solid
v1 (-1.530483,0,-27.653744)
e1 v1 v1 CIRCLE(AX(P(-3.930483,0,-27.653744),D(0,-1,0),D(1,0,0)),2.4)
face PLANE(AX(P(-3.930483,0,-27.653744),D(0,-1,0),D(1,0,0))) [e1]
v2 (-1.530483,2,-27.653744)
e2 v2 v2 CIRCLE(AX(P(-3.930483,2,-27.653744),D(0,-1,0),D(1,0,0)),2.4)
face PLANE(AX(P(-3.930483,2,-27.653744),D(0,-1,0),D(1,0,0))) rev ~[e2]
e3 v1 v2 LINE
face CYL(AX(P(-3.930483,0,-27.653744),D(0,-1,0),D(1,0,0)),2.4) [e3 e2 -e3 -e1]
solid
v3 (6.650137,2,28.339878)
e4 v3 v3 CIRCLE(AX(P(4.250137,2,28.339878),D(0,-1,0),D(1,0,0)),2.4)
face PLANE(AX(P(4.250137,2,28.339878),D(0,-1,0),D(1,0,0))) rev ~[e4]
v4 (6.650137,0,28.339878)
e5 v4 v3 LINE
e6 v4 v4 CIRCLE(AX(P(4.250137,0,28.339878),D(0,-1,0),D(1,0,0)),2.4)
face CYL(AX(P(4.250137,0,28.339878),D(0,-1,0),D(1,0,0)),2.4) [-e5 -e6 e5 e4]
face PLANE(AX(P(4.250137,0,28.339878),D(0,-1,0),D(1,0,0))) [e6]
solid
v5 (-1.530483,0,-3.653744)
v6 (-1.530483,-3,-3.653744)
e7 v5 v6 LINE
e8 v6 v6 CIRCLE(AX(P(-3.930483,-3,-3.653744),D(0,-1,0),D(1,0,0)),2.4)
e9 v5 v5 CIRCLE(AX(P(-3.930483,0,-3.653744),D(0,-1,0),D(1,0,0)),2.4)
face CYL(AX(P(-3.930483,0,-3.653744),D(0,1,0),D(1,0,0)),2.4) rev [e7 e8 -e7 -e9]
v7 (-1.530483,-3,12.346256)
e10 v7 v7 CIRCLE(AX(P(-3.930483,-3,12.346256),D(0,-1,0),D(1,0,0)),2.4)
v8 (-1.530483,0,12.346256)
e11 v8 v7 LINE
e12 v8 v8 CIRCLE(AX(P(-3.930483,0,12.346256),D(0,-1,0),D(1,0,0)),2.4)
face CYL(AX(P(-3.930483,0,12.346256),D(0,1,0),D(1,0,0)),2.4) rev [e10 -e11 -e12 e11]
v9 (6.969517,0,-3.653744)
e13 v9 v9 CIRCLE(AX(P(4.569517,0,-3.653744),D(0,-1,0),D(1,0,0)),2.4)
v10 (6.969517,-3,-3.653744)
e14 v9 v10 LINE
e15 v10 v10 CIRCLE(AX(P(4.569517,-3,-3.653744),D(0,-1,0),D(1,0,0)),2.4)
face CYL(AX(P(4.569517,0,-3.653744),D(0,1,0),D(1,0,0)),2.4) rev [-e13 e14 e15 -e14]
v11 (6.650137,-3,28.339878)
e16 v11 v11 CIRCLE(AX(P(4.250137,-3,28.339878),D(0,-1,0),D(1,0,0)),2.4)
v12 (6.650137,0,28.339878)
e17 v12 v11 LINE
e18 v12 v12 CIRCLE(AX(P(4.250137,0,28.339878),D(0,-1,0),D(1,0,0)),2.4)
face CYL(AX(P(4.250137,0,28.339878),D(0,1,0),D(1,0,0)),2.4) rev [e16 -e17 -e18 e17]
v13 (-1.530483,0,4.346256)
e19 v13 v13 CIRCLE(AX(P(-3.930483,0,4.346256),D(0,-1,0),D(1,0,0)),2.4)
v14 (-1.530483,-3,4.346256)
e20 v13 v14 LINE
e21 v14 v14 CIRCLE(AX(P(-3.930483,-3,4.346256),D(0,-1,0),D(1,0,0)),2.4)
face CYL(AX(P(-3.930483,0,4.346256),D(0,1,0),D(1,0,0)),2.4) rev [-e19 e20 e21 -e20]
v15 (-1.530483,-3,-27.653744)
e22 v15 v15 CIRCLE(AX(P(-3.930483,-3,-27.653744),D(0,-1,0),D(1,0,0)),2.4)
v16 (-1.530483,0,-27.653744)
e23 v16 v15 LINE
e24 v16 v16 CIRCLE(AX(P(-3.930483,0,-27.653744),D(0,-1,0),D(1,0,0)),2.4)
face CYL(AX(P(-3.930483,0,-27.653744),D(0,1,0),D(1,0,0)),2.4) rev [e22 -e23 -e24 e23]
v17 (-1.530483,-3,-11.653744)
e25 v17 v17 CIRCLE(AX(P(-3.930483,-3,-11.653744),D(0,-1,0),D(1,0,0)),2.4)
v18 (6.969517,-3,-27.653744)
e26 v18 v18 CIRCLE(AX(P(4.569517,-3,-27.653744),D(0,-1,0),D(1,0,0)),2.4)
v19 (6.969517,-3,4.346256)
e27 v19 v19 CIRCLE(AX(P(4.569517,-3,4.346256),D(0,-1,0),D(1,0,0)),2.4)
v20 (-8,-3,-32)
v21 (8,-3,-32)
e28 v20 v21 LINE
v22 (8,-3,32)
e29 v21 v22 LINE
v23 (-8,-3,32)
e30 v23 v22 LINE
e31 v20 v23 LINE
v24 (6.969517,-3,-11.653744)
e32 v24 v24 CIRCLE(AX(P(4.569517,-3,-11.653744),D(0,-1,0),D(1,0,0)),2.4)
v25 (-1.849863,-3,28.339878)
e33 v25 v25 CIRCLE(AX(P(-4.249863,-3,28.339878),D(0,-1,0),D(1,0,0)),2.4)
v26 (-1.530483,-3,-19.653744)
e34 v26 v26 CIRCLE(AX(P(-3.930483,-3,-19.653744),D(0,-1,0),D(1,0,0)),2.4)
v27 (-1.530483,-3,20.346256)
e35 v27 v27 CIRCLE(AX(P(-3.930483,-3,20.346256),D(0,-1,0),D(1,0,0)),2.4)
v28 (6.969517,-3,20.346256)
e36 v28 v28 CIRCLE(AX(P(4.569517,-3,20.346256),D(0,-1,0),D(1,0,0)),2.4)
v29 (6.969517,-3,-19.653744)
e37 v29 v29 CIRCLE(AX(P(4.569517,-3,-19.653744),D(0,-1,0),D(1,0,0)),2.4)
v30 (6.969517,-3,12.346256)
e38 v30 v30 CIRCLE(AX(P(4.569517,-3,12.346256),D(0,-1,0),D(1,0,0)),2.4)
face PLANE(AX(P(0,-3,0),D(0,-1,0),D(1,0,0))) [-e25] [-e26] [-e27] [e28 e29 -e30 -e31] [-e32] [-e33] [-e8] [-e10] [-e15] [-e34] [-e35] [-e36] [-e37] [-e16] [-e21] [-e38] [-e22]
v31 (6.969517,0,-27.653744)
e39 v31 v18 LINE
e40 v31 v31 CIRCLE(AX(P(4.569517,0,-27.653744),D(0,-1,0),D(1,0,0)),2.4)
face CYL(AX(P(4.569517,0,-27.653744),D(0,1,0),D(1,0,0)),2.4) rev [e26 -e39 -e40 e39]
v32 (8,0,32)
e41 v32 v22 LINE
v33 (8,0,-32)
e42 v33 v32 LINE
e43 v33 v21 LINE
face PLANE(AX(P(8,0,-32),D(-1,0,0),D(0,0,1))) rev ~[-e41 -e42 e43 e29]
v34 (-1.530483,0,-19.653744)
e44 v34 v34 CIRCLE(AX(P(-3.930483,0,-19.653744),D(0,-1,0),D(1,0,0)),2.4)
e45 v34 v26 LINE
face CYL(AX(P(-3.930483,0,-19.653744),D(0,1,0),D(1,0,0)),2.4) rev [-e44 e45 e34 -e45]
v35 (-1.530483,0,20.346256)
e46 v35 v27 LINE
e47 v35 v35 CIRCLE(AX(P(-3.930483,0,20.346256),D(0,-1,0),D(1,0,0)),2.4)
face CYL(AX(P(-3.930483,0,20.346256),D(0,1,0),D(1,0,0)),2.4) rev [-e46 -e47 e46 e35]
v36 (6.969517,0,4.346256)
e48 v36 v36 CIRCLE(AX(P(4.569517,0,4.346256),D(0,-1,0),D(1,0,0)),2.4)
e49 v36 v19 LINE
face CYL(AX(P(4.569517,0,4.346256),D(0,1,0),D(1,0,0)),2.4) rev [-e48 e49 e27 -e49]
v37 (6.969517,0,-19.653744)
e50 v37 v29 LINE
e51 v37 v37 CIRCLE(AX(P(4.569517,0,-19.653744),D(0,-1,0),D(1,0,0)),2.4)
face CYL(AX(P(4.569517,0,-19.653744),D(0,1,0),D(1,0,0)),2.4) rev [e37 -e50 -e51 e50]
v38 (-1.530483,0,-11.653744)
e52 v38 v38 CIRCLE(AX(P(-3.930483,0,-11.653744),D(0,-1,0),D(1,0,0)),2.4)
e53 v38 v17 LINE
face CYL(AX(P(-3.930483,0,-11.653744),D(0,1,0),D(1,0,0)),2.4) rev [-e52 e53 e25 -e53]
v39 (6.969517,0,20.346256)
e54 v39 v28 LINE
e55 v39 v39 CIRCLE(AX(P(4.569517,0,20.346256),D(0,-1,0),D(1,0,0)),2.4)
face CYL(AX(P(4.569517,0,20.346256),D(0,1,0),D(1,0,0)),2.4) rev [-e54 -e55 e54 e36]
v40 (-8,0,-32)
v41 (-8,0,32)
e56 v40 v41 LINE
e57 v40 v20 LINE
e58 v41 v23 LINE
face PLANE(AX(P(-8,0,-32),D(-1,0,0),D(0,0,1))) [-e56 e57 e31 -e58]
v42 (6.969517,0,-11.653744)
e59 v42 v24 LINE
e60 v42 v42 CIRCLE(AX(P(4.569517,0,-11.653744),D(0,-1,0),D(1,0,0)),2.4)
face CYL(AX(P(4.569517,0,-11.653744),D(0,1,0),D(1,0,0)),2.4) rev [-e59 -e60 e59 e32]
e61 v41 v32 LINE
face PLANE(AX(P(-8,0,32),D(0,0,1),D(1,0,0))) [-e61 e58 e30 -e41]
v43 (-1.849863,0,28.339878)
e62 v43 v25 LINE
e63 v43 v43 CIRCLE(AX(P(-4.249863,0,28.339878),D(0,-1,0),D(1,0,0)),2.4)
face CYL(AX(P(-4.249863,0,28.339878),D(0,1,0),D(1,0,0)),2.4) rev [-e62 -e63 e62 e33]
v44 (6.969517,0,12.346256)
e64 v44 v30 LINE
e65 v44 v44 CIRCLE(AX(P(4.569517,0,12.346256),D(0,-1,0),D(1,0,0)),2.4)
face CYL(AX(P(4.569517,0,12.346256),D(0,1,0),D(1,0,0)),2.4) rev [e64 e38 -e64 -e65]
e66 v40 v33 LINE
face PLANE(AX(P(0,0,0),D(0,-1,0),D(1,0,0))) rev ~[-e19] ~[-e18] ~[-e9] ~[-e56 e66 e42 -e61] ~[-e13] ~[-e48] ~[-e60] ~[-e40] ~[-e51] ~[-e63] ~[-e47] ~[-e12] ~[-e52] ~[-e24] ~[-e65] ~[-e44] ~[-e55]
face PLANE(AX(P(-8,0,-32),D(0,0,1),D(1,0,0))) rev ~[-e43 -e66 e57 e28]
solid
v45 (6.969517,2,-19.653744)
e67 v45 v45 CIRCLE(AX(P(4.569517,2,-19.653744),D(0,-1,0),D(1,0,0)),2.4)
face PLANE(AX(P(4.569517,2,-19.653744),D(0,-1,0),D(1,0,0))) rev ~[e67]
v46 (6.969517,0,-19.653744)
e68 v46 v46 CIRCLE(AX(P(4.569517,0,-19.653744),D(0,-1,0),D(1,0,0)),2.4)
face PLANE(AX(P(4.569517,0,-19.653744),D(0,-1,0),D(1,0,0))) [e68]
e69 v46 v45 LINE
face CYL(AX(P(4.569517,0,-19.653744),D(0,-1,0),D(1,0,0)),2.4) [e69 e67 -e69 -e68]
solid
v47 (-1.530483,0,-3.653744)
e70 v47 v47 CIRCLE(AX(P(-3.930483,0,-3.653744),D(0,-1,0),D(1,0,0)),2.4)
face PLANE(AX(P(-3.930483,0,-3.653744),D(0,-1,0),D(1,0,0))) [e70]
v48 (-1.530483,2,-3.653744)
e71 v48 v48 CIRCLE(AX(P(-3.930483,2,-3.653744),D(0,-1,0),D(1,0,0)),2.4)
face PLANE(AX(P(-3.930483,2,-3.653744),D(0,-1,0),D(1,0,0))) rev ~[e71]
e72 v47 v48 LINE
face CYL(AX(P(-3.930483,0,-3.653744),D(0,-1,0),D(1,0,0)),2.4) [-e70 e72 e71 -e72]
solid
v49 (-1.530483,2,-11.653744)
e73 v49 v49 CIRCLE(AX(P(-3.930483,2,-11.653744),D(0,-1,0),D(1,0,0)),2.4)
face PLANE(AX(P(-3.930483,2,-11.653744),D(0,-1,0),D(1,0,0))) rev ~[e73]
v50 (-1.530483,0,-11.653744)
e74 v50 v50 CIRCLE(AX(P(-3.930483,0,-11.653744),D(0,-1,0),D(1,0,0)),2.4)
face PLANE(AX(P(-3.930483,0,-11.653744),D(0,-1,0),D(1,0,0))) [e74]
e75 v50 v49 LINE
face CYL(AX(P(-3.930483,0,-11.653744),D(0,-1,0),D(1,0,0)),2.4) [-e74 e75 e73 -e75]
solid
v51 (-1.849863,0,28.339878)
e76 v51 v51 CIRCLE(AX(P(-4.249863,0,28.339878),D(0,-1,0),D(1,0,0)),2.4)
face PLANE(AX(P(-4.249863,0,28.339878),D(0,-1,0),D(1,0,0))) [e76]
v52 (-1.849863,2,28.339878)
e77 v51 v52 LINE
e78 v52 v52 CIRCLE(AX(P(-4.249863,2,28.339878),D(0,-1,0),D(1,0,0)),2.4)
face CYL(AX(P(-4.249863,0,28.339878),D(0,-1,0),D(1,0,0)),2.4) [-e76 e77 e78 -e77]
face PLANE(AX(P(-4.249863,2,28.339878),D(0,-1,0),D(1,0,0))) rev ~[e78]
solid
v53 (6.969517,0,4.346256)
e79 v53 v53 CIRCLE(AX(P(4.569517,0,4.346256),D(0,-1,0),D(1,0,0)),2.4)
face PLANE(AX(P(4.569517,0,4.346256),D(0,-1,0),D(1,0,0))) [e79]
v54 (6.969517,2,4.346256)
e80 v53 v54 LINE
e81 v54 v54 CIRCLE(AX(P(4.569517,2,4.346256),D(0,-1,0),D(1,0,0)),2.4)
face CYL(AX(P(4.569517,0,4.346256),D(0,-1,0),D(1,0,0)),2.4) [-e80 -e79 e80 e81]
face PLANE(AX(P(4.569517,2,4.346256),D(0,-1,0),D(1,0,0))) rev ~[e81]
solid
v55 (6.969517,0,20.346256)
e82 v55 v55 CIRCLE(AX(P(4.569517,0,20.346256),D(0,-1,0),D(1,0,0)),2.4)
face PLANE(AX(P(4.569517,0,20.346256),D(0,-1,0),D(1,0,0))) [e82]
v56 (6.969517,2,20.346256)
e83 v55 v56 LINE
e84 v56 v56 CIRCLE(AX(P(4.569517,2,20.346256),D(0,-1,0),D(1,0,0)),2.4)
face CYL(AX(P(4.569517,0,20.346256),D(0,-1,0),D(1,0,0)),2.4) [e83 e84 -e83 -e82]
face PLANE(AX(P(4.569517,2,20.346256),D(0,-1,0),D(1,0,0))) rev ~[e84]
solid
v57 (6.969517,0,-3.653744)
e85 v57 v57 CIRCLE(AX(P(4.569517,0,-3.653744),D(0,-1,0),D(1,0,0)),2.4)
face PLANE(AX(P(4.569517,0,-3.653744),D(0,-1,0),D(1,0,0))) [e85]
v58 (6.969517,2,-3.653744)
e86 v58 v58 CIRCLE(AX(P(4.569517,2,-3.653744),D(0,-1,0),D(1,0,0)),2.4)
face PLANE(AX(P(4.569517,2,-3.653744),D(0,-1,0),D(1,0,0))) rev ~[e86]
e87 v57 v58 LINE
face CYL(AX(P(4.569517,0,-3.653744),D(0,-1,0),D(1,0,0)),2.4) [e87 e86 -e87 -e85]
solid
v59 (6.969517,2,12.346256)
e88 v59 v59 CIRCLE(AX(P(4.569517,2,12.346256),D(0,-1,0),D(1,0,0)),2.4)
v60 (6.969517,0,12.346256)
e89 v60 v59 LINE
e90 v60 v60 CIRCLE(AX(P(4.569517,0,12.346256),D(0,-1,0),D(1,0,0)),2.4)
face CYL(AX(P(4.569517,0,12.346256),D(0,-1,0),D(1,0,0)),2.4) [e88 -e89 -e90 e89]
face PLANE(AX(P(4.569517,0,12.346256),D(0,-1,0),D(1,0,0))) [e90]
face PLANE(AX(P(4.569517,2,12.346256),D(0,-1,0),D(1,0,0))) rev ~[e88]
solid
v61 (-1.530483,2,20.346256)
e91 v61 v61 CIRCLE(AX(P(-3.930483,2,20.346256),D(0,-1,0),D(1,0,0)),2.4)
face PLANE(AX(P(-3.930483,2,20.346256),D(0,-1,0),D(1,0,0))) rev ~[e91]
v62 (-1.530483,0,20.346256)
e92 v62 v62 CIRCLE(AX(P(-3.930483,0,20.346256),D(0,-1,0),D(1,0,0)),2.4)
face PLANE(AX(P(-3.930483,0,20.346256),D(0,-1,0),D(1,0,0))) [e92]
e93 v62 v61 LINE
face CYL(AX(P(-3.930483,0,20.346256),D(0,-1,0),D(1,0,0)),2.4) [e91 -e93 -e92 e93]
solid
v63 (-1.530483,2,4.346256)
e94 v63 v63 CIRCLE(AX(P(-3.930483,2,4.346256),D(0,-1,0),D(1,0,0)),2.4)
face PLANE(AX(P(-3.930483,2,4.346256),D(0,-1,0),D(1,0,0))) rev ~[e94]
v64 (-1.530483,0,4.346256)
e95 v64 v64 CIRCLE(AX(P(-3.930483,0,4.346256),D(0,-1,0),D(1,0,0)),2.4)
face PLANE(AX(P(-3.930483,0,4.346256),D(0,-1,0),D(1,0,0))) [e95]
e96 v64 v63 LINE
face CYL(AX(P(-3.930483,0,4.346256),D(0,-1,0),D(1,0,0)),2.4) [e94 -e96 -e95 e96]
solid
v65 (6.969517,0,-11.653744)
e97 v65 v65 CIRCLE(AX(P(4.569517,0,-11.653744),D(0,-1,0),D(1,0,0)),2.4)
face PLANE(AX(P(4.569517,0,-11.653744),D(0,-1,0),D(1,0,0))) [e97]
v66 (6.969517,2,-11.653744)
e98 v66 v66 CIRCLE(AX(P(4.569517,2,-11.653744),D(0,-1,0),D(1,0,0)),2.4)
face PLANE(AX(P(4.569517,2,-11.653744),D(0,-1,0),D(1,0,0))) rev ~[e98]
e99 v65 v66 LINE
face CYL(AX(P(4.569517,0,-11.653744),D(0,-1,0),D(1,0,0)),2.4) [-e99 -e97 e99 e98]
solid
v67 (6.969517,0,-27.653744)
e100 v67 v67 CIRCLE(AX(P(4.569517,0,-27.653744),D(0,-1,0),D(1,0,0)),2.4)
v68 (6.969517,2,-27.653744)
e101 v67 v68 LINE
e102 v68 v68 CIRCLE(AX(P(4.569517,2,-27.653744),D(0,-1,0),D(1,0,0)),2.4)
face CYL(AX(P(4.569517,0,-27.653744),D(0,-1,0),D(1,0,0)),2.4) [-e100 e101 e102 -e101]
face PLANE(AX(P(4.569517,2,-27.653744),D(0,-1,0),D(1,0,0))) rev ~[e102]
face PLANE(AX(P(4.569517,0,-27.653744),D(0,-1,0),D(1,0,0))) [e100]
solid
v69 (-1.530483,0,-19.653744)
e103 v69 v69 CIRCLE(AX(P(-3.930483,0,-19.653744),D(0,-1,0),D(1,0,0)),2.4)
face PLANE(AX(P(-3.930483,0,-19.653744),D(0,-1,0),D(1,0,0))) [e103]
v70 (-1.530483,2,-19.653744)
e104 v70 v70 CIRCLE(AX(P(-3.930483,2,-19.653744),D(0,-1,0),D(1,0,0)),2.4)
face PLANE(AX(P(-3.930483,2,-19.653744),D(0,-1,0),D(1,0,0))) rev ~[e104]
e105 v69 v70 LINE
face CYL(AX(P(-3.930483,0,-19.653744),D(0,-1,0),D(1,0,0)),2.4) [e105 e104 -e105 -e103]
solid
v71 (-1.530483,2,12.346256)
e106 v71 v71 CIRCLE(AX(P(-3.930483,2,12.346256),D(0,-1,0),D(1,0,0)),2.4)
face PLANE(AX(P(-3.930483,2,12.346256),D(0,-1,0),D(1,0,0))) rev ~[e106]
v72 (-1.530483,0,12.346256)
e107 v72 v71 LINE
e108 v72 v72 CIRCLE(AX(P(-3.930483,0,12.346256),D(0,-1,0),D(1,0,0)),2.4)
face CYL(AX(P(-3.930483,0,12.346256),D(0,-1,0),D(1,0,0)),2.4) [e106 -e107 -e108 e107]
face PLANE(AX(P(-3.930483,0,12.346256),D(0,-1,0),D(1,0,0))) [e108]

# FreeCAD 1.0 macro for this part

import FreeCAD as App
import Part
import Sketcher
Q = App.Units.Quantity


def add_polygon(sketch, points):
    """Adds a closed chain of lines whose ends are joined by coincident constraints."""
    first, n = sketch.GeometryCount, len(points)
    for a, b in zip(points, points[1:] + points[:1]):
        sketch.addGeometry(Part.LineSegment(App.Vector(*a, 0), App.Vector(*b, 0)), False)
    for i in range(n):
        sketch.addConstraint(Sketcher.Constraint("Coincident", first + i, 2, first + (i + 1) % n, 1))

doc = App.newDocument("Part")
body = doc.addObject("PartDesign::Body", "Body")
body.AllowCompound = True

sketch1 = body.newObject("Sketcher::SketchObject", "Sketch")
sketch1.AttachmentSupport = (doc.getObject("XZ_Plane"), [""])
sketch1.MapMode = "FlatFace"
add_polygon(sketch1, [(-8, 32), (-8, -32), (8, -32), (8, 32)])
sketch1.addGeometry(Part.Circle(App.Vector(-3.9, -27.7, 0), App.Vector(0, 0, 1), 2.4), False)
sketch1.addGeometry(Part.Circle(App.Vector(-3.9, -19.7, 0), App.Vector(0, 0, 1), 2.4), False)
sketch1.addGeometry(Part.Circle(App.Vector(-3.9, -11.7, 0), App.Vector(0, 0, 1), 2.4), False)
sketch1.addGeometry(Part.Circle(App.Vector(-3.9, -3.7, 0), App.Vector(0, 0, 1), 2.4), False)
sketch1.addGeometry(Part.Circle(App.Vector(4.6, -27.7, 0), App.Vector(0, 0, 1), 2.4), False)
sketch1.addGeometry(Part.Circle(App.Vector(4.6, -19.7, 0), App.Vector(0, 0, 1), 2.4), False)
sketch1.addGeometry(Part.Circle(App.Vector(4.6, -11.7, 0), App.Vector(0, 0, 1), 2.4), False)
sketch1.addGeometry(Part.Circle(App.Vector(4.6, -3.7, 0), App.Vector(0, 0, 1), 2.4), False)
sketch1.addGeometry(Part.Circle(App.Vector(-3.9, 4.3, 0), App.Vector(0, 0, 1), 2.4), False)
sketch1.addGeometry(Part.Circle(App.Vector(-3.9, 12.3, 0), App.Vector(0, 0, 1), 2.4), False)
sketch1.addGeometry(Part.Circle(App.Vector(-3.9, 20.3, 0), App.Vector(0, 0, 1), 2.4), False)
sketch1.addGeometry(Part.Circle(App.Vector(-4.2, 28.3, 0), App.Vector(0, 0, 1), 2.4), False)
sketch1.addGeometry(Part.Circle(App.Vector(4.6, 4.3, 0), App.Vector(0, 0, 1), 2.4), False)
sketch1.addGeometry(Part.Circle(App.Vector(4.6, 12.3, 0), App.Vector(0, 0, 1), 2.4), False)
sketch1.addGeometry(Part.Circle(App.Vector(4.6, 20.3, 0), App.Vector(0, 0, 1), 2.4), False)
sketch1.addGeometry(Part.Circle(App.Vector(4.3, 28.3, 0), App.Vector(0, 0, 1), 2.4), False)
sketch1.addConstraint([
    Sketcher.Constraint("Vertical", 0),
    Sketcher.Constraint("Horizontal", 1),
    Sketcher.Constraint("Vertical", 2),
    Sketcher.Constraint("Horizontal", 3),
    Sketcher.Constraint("Equal", 4, 5),
    Sketcher.Constraint("Equal", 5, 6),
    Sketcher.Constraint("Equal", 6, 7),
    Sketcher.Constraint("Equal", 7, 8),
    Sketcher.Constraint("Equal", 8, 9),
    Sketcher.Constraint("Equal", 9, 10),
    Sketcher.Constraint("Equal", 10, 11),
    Sketcher.Constraint("Equal", 11, 12),
    Sketcher.Constraint("Equal", 12, 13),
    Sketcher.Constraint("Equal", 13, 14),
    Sketcher.Constraint("Equal", 14, 15),
    Sketcher.Constraint("Equal", 15, 16),
    Sketcher.Constraint("Equal", 16, 17),
    Sketcher.Constraint("Equal", 17, 18),
    Sketcher.Constraint("Equal", 18, 19),
    Sketcher.Constraint("Symmetric", 0, 2, 2, 2, -1, 1),
    Sketcher.Constraint("Horizontal", 4, 3, 8, 3),
    Sketcher.Constraint("Horizontal", 5, 3, 9, 3),
    Sketcher.Constraint("Horizontal", 6, 3, 10, 3),
    Sketcher.Constraint("Horizontal", 7, 3, 11, 3),
    Sketcher.Constraint("Horizontal", 12, 3, 16, 3),
    Sketcher.Constraint("Horizontal", 13, 3, 17, 3),
    Sketcher.Constraint("Horizontal", 14, 3, 18, 3),
    Sketcher.Constraint("Horizontal", 15, 3, 19, 3),
    Sketcher.Constraint("Vertical", 4, 3, 5, 3),
    Sketcher.Constraint("Vertical", 5, 3, 6, 3),
    Sketcher.Constraint("Vertical", 6, 3, 7, 3),
    Sketcher.Constraint("Vertical", 8, 3, 9, 3),
    Sketcher.Constraint("Vertical", 9, 3, 10, 3),
    Sketcher.Constraint("Vertical", 10, 3, 11, 3),
    Sketcher.Constraint("Vertical", 7, 3, 12, 3),
    Sketcher.Constraint("Vertical", 12, 3, 13, 3),
    Sketcher.Constraint("Vertical", 13, 3, 14, 3),
    Sketcher.Constraint("Vertical", 11, 3, 16, 3),
    Sketcher.Constraint("Vertical", 16, 3, 17, 3),
    Sketcher.Constraint("Vertical", 17, 3, 18, 3),
    Sketcher.Constraint("Diameter", 4, Q("4.8 mm")),
    Sketcher.Constraint("DistanceX", 1, 1, 1, 2, Q("16 mm")),
    Sketcher.Constraint("DistanceY", 0, 2, 0, 1, Q("64 mm")),
    Sketcher.Constraint("DistanceY", 4, 3, 5, 3, Q("8 mm")),
    Sketcher.Constraint("DistanceY", 5, 3, 6, 3, Q("8 mm")),
    Sketcher.Constraint("DistanceY", 6, 3, 7, 3, Q("8 mm")),
    Sketcher.Constraint("DistanceY", 7, 3, 12, 3, Q("8 mm")),
    Sketcher.Constraint("DistanceY", 12, 3, 13, 3, Q("8 mm")),
    Sketcher.Constraint("DistanceY", 13, 3, 14, 3, Q("8 mm")),
    Sketcher.Constraint("DistanceX", 4, 3, 8, 3, Q("8.5 mm")),
    Sketcher.Constraint("DistanceX", 15, 3, 19, 3, Q("8.5 mm")),
    Sketcher.Constraint("DistanceX", 15, 3, 14, 3, Q("0.31938 mm")),
    Sketcher.Constraint("DistanceY", 14, 3, 15, 3, Q("7.993622 mm")),
    Sketcher.Constraint("DistanceX", 4, 3, -1, 1, Q("3.930483 mm")),
    Sketcher.Constraint("DistanceY", 4, 3, -1, 1, Q("27.653744 mm")),
])
pad1 = body.newObject("PartDesign::Pad", "Pad")
pad1.Profile = sketch1
pad1.Length = 3

sketch2 = body.newObject("Sketcher::SketchObject", "Sketch001")
sketch2.AttachmentSupport = (doc.getObject("XZ_Plane"), [""])
sketch2.MapMode = "FlatFace"
sketch2.addGeometry([
    Part.Circle(App.Vector(-4.2, 28.3, 0), App.Vector(0, 0, 1), 2.4),
    Part.Circle(App.Vector(-3.9, 20.3, 0), App.Vector(0, 0, 1), 2.4),
    Part.Circle(App.Vector(-3.9, 12.3, 0), App.Vector(0, 0, 1), 2.4),
    Part.Circle(App.Vector(-3.9, 4.3, 0), App.Vector(0, 0, 1), 2.4),
    Part.Circle(App.Vector(-3.9, -3.7, 0), App.Vector(0, 0, 1), 2.4),
    Part.Circle(App.Vector(-3.9, -11.7, 0), App.Vector(0, 0, 1), 2.4),
    Part.Circle(App.Vector(-3.9, -19.7, 0), App.Vector(0, 0, 1), 2.4),
    Part.Circle(App.Vector(-3.9, -27.7, 0), App.Vector(0, 0, 1), 2.4),
    Part.Circle(App.Vector(4.3, 28.3, 0), App.Vector(0, 0, 1), 2.4),
    Part.Circle(App.Vector(4.6, 20.3, 0), App.Vector(0, 0, 1), 2.4),
    Part.Circle(App.Vector(4.6, 4.3, 0), App.Vector(0, 0, 1), 2.4),
    Part.Circle(App.Vector(4.6, 12.3, 0), App.Vector(0, 0, 1), 2.4),
    Part.Circle(App.Vector(4.6, -3.7, 0), App.Vector(0, 0, 1), 2.4),
    Part.Circle(App.Vector(4.6, -11.7, 0), App.Vector(0, 0, 1), 2.4),
    Part.Circle(App.Vector(4.6, -19.7, 0), App.Vector(0, 0, 1), 2.4),
    Part.Circle(App.Vector(4.6, -27.7, 0), App.Vector(0, 0, 1), 2.4),
], False)
sketch2.addConstraint([
    Sketcher.Constraint("Equal", 0, 1),
    Sketcher.Constraint("Equal", 1, 2),
    Sketcher.Constraint("Equal", 2, 3),
    Sketcher.Constraint("Equal", 3, 4),
    Sketcher.Constraint("Equal", 4, 5),
    Sketcher.Constraint("Equal", 5, 6),
    Sketcher.Constraint("Equal", 6, 7),
    Sketcher.Constraint("Equal", 7, 8),
    Sketcher.Constraint("Equal", 8, 9),
    Sketcher.Constraint("Equal", 9, 10),
    Sketcher.Constraint("Equal", 10, 11),
    Sketcher.Constraint("Equal", 11, 12),
    Sketcher.Constraint("Equal", 12, 13),
    Sketcher.Constraint("Equal", 13, 14),
    Sketcher.Constraint("Equal", 14, 15),
    Sketcher.Constraint("Horizontal", 0, 3, 8, 3),
    Sketcher.Constraint("Horizontal", 1, 3, 9, 3),
    Sketcher.Constraint("Horizontal", 3, 3, 10, 3),
    Sketcher.Constraint("Horizontal", 2, 3, 11, 3),
    Sketcher.Constraint("Horizontal", 4, 3, 12, 3),
    Sketcher.Constraint("Horizontal", 5, 3, 13, 3),
    Sketcher.Constraint("Horizontal", 6, 3, 14, 3),
    Sketcher.Constraint("Horizontal", 7, 3, 15, 3),
    Sketcher.Constraint("Vertical", 1, 3, 2, 3),
    Sketcher.Constraint("Vertical", 2, 3, 3, 3),
    Sketcher.Constraint("Vertical", 3, 3, 4, 3),
    Sketcher.Constraint("Vertical", 4, 3, 5, 3),
    Sketcher.Constraint("Vertical", 5, 3, 6, 3),
    Sketcher.Constraint("Vertical", 6, 3, 7, 3),
    Sketcher.Constraint("Vertical", 9, 3, 10, 3),
    Sketcher.Constraint("Vertical", 10, 3, 11, 3),
    Sketcher.Constraint("Vertical", 11, 3, 12, 3),
    Sketcher.Constraint("Vertical", 12, 3, 13, 3),
    Sketcher.Constraint("Vertical", 13, 3, 14, 3),
    Sketcher.Constraint("Vertical", 14, 3, 15, 3),
    Sketcher.Constraint("Diameter", 0, Q("4.8 mm")),
    Sketcher.Constraint("DistanceY", 2, 3, 1, 3, Q("8 mm")),
    Sketcher.Constraint("DistanceY", 3, 3, 2, 3, Q("8 mm")),
    Sketcher.Constraint("DistanceY", 4, 3, 3, 3, Q("8 mm")),
    Sketcher.Constraint("DistanceY", 5, 3, 4, 3, Q("8 mm")),
    Sketcher.Constraint("DistanceY", 6, 3, 5, 3, Q("8 mm")),
    Sketcher.Constraint("DistanceY", 7, 3, 6, 3, Q("8 mm")),
    Sketcher.Constraint("DistanceX", 0, 3, 8, 3, Q("8.5 mm")),
    Sketcher.Constraint("DistanceX", 1, 3, 9, 3, Q("8.5 mm")),
    Sketcher.Constraint("DistanceX", 0, 3, 1, 3, Q("0.31938 mm")),
    Sketcher.Constraint("DistanceY", 1, 3, 0, 3, Q("7.993622 mm")),
    Sketcher.Constraint("DistanceX", 0, 3, -1, 1, Q("4.249863 mm")),
    Sketcher.Constraint("DistanceY", -1, 1, 0, 3, Q("28.339878 mm")),
])
pad2 = body.newObject("PartDesign::Pad", "Pad001")
pad2.Profile = sketch2
pad2.Length = 2
pad2.Reversed = True

doc.recompute()
